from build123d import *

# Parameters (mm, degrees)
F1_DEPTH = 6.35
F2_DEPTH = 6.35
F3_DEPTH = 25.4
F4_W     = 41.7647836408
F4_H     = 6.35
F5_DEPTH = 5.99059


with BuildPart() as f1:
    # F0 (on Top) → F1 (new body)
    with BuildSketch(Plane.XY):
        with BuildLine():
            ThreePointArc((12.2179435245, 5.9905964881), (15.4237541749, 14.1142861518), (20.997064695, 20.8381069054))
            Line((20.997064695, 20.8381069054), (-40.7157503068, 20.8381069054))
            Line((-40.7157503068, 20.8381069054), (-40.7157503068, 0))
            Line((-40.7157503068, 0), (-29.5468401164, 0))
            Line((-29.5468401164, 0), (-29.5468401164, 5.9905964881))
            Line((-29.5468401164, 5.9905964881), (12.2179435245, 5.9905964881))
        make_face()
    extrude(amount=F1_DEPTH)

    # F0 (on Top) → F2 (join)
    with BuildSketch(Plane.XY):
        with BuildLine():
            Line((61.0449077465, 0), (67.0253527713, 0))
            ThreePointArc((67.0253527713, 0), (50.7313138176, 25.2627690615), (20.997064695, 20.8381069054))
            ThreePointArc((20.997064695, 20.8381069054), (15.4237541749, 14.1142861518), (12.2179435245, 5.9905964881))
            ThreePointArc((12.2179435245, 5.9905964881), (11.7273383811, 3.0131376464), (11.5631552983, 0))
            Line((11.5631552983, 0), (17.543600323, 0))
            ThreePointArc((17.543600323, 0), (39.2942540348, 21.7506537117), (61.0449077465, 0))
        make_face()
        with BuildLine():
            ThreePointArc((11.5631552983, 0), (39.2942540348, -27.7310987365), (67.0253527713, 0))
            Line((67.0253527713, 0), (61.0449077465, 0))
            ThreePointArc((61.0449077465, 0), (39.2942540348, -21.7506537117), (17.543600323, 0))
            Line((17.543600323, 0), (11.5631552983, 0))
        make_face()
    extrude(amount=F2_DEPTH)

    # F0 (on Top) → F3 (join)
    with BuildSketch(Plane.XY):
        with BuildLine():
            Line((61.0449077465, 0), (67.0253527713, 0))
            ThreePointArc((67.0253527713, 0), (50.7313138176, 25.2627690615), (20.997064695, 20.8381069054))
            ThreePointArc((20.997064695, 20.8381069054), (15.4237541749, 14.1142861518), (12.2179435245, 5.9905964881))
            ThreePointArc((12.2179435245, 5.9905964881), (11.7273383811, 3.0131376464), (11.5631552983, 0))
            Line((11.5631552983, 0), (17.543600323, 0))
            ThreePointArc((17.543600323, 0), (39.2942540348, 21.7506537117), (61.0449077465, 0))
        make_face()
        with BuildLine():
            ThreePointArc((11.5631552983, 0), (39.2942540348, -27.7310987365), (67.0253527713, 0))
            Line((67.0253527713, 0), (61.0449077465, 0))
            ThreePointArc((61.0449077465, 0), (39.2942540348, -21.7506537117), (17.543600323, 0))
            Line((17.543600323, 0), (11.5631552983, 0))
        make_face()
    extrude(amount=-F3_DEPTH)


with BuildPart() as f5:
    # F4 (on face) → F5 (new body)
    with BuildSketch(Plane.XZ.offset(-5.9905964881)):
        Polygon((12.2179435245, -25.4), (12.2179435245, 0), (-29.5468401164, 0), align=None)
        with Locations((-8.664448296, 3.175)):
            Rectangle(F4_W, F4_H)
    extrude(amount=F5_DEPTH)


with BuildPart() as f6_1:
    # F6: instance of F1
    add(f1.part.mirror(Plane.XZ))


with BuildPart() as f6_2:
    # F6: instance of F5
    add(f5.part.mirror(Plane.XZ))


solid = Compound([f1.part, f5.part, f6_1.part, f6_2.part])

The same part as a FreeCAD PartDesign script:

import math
import FreeCAD as App
import Part
import Sketcher

V = App.Vector
Q = App.Units.Quantity


def add_polygon(sketch, points):
    """Adds a closed chain of lines whose ends are joined by coincident constraints."""
    first, n = sketch.GeometryCount, len(points)
    for a, b in zip(points, points[1:] + points[:1]):
        sketch.addGeometry(Part.LineSegment(App.Vector(*a, 0), App.Vector(*b, 0)), False)
    for i in range(n):
        sketch.addConstraint(Sketcher.Constraint("Coincident", first + i, 2, first + (i + 1) % n, 1))

doc = App.newDocument("Part")
body = doc.addObject("PartDesign::Body", "Body")

sketch1 = body.newObject("Sketcher::SketchObject", "Sketch")
sketch1.AttachmentSupport = (doc.getObject("XY_Plane"), [""])
sketch1.MapMode = "FlatFace"
sketch1.addGeometry(Part.ArcOfCircle(Part.Circle(V(39, 0, 0), V(0, 0, 1), 28), math.radians(131), math.radians(168)), False)
sketch1.addGeometry(Part.LineSegment(V(21, 21, 0), V(-41, 21, 0)), False)
sketch1.addGeometry(Part.LineSegment(V(-41, 21, 0), V(-41, 0, 0)), False)
sketch1.addGeometry(Part.LineSegment(V(-41, 0, 0), V(-30, 0, 0)), False)
sketch1.addGeometry(Part.LineSegment(V(-30, 0, 0), V(-30, 6, 0)), False)
sketch1.addGeometry(Part.LineSegment(V(-30, 6, 0), V(12, 6, 0)), False)
sketch1.addConstraint(Sketcher.Constraint("Coincident", 0, 1, 1, 1))
sketch1.addConstraint(Sketcher.Constraint("Coincident", 1, 2, 2, 1))
sketch1.addConstraint(Sketcher.Constraint("Coincident", 2, 2, 3, 1))
sketch1.addConstraint(Sketcher.Constraint("Coincident", 3, 2, 4, 1))
sketch1.addConstraint(Sketcher.Constraint("Coincident", 4, 2, 5, 1))
sketch1.addConstraint(Sketcher.Constraint("Coincident", 5, 2, 0, 2))
sketch1.addConstraint(Sketcher.Constraint("Horizontal", 1))
sketch1.addConstraint(Sketcher.Constraint("Vertical", 2))
sketch1.addConstraint(Sketcher.Constraint("Horizontal", 3))
sketch1.addConstraint(Sketcher.Constraint("Vertical", 4))
sketch1.addConstraint(Sketcher.Constraint("Horizontal", 5))
sketch1.addConstraint(Sketcher.Constraint("PointOnObject", 0, 3, -1))
sketch1.addConstraint(Sketcher.Constraint("PointOnObject", 2, 2, -1))
sketch1.addConstraint(Sketcher.Constraint("Radius", 0, 27.731099))
sketch1.addConstraint(Sketcher.Constraint("DistanceX", 1, 2, 0, 3, Q("3.1500002 in")))
sketch1.addConstraint(Sketcher.Constraint("DistanceX", 3, 1, 3, 2, 11.16891))
sketch1.addConstraint(Sketcher.Constraint("DistanceX", 1, 2, 1, 1, 61.712815))
sketch1.addConstraint(Sketcher.Constraint("DistanceX", 5, 1, 5, 2, 41.764784))
sketch1.addConstraint(Sketcher.Constraint("DistanceX", 1, 2, -1, 1, 40.71575))
pad1 = body.newObject("PartDesign::Pad", "Pad")
pad1.Profile = sketch1
pad1.Length = Q("0.25 in")

sketch2 = body.newObject("Sketcher::SketchObject", "Sketch001")
sketch2.AttachmentSupport = (doc.getObject("XY_Plane"), [""])
sketch2.MapMode = "FlatFace"
sketch2.addGeometry(Part.ArcOfCircle(Part.Circle(V(39, 0, 0), V(0, 0, 1), 28), math.radians(0), math.radians(131)), False)
sketch2.addGeometry(Part.ArcOfCircle(Part.Circle(V(39, 0, 0), V(0, 0, 1), 28), math.radians(131), math.radians(168)), False)
sketch2.addGeometry(Part.ArcOfCircle(Part.Circle(V(39, 0, 0), V(0, 0, 1), 28), math.radians(167.52), math.radians(180)), False)
sketch2.addGeometry(Part.ArcOfCircle(Part.Circle(V(39, 0, 0), V(0, 0, 1), 28), math.radians(180), math.radians(360)), False)
sketch2.addGeometry(Part.ArcOfCircle(Part.Circle(V(39, 0, 0), V(0, 0, 1), 22), math.radians(0), math.radians(180)), False)
sketch2.addGeometry(Part.ArcOfCircle(Part.Circle(V(39, 0, 0), V(0, 0, 1), 22), math.radians(180), math.radians(360)), False)
sketch2.addConstraint(Sketcher.Constraint("Tangent", 0, 2, 1, 1))
sketch2.addConstraint(Sketcher.Constraint("Tangent", 1, 2, 2, 1))
sketch2.addConstraint(Sketcher.Constraint("Tangent", 2, 2, 3, 1))
sketch2.addConstraint(Sketcher.Constraint("Tangent", 3, 2, 0, 1))
sketch2.addConstraint(Sketcher.Constraint("Tangent", 4, 1, 5, 2))
sketch2.addConstraint(Sketcher.Constraint("Coincident", 5, 1, 4, 2))
sketch2.addConstraint(Sketcher.Constraint("Coincident", 4, 3, 0, 3))
sketch2.addConstraint(Sketcher.Constraint("Equal", 0, 1))
sketch2.addConstraint(Sketcher.Constraint("PointOnObject", 0, 3, -1))
sketch2.addConstraint(Sketcher.Constraint("PointOnObject", 2, 2, -1))
sketch2.addConstraint(Sketcher.Constraint("PointOnObject", 3, 2, -1))
sketch2.addConstraint(Sketcher.Constraint("PointOnObject", 4, 1, -1))
sketch2.addConstraint(Sketcher.Constraint("PointOnObject", 5, 1, -1))
sketch2.addConstraint(Sketcher.Constraint("Radius", 0, 27.731099))
sketch2.addConstraint(Sketcher.Constraint("Radius", 4, 21.750654))
sketch2.addConstraint(Sketcher.Constraint("DistanceX", -1, 1, 5, 1, 17.5436))
sketch2.addConstraint(Sketcher.Constraint("DistanceX", 0, 2, 2, 3, 18.297189))
sketch2.addConstraint(Sketcher.Constraint("DistanceX", 1, 2, 0, 2, 8.779121))
pad2 = body.newObject("PartDesign::Pad", "Pad001")
pad2.Profile = sketch2
pad2.Length = Q("0.25 in")

sketch3 = body.newObject("Sketcher::SketchObject", "Sketch002")
sketch3.AttachmentSupport = (doc.getObject("XY_Plane"), [""])
sketch3.MapMode = "FlatFace"
sketch3.addGeometry(Part.ArcOfCircle(Part.Circle(V(39, 0, 0), V(0, 0, 1), 28), math.radians(0), math.radians(131)), False)
sketch3.addGeometry(Part.ArcOfCircle(Part.Circle(V(39, 0, 0), V(0, 0, 1), 28), math.radians(131), math.radians(168)), False)
sketch3.addGeometry(Part.ArcOfCircle(Part.Circle(V(39, 0, 0), V(0, 0, 1), 28), math.radians(167.52), math.radians(180)), False)
sketch3.addGeometry(Part.ArcOfCircle(Part.Circle(V(39, 0, 0), V(0, 0, 1), 28), math.radians(180), math.radians(360)), False)
sketch3.addGeometry(Part.ArcOfCircle(Part.Circle(V(39, 0, 0), V(0, 0, 1), 22), math.radians(0), math.radians(180)), False)
sketch3.addGeometry(Part.ArcOfCircle(Part.Circle(V(39, 0, 0), V(0, 0, 1), 22), math.radians(180), math.radians(360)), False)
sketch3.addConstraint(Sketcher.Constraint("Tangent", 0, 2, 1, 1))
sketch3.addConstraint(Sketcher.Constraint("Tangent", 1, 2, 2, 1))
sketch3.addConstraint(Sketcher.Constraint("Tangent", 2, 2, 3, 1))
sketch3.addConstraint(Sketcher.Constraint("Tangent", 3, 2, 0, 1))
sketch3.addConstraint(Sketcher.Constraint("Tangent", 4, 1, 5, 2))
sketch3.addConstraint(Sketcher.Constraint("Coincident", 5, 1, 4, 2))
sketch3.addConstraint(Sketcher.Constraint("Coincident", 4, 3, 0, 3))
sketch3.addConstraint(Sketcher.Constraint("Equal", 0, 1))
sketch3.addConstraint(Sketcher.Constraint("PointOnObject", 0, 3, -1))
sketch3.addConstraint(Sketcher.Constraint("PointOnObject", 2, 2, -1))
sketch3.addConstraint(Sketcher.Constraint("PointOnObject", 3, 2, -1))
sketch3.addConstraint(Sketcher.Constraint("PointOnObject", 4, 1, -1))
sketch3.addConstraint(Sketcher.Constraint("PointOnObject", 5, 1, -1))
sketch3.addConstraint(Sketcher.Constraint("Radius", 0, 27.731099))
sketch3.addConstraint(Sketcher.Constraint("Radius", 4, 21.750654))
sketch3.addConstraint(Sketcher.Constraint("DistanceX", -1, 1, 5, 1, 17.5436))
sketch3.addConstraint(Sketcher.Constraint("DistanceX", 0, 2, 2, 3, 18.297189))
sketch3.addConstraint(Sketcher.Constraint("DistanceX", 1, 2, 0, 2, 8.779121))
pad3 = body.newObject("PartDesign::Pad", "Pad002")
pad3.Profile = sketch3
pad3.Length = Q("1 in")
pad3.Reversed = True
body2 = doc.addObject("PartDesign::Body", "Body001")

sketch4 = body2.newObject("Sketcher::SketchObject", "Sketch003")
sketch4.AttachmentSupport = (doc.getObject("XZ_Plane001"), [""])
sketch4.MapMode = "FlatFace"
sketch4.AttachmentOffset = App.Placement(V(0, 0, -5.990596), App.Rotation())
add_polygon(sketch4, [(12, -25), (12, 6), (-30, 6), (-30, 0)])
sketch4.addConstraint(Sketcher.Constraint("Vertical", 0))
sketch4.addConstraint(Sketcher.Constraint("Horizontal", 1))
sketch4.addConstraint(Sketcher.Constraint("Vertical", 2))
sketch4.addConstraint(Sketcher.Constraint("PointOnObject", 2, 2, -1))
sketch4.addConstraint(Sketcher.Constraint("DistanceY", 3, 2, -1, 1, Q("1 in")))
sketch4.addConstraint(Sketcher.Constraint("DistanceY", 0, 1, 0, 2, Q("1.25 in")))
sketch4.addConstraint(Sketcher.Constraint("DistanceX", 1, 2, 1, 1, 41.764784))
sketch4.addConstraint(Sketcher.Constraint("DistanceX", 1, 2, -1, 1, 29.54684))
pad4 = body2.newObject("PartDesign::Pad", "Pad003")
pad4.Profile = sketch4
pad4.Length = 5.99059
body3 = doc.addObject("PartDesign::Body", "Body002")
doc.recompute()

mirroring = doc.addObject("Part::Mirroring", "Mirroring")
mirroring.Source = body
mirroring.Base = V(0, 0, 0)
mirroring.Normal = V(0, -1, 0)
body3.BaseFeature = mirroring
doc.recompute()
body4 = doc.addObject("PartDesign::Body", "Body003")
doc.recompute()

mirroring2 = doc.addObject("Part::Mirroring", "Mirroring001")
mirroring2.Source = body2
mirroring2.Base = V(0, 0, 0)
mirroring2.Normal = V(0, -1, 0)
body4.BaseFeature = mirroring2
doc.recompute()
mirroring.Visibility = False
mirroring2.Visibility = False

doc.recompute()
